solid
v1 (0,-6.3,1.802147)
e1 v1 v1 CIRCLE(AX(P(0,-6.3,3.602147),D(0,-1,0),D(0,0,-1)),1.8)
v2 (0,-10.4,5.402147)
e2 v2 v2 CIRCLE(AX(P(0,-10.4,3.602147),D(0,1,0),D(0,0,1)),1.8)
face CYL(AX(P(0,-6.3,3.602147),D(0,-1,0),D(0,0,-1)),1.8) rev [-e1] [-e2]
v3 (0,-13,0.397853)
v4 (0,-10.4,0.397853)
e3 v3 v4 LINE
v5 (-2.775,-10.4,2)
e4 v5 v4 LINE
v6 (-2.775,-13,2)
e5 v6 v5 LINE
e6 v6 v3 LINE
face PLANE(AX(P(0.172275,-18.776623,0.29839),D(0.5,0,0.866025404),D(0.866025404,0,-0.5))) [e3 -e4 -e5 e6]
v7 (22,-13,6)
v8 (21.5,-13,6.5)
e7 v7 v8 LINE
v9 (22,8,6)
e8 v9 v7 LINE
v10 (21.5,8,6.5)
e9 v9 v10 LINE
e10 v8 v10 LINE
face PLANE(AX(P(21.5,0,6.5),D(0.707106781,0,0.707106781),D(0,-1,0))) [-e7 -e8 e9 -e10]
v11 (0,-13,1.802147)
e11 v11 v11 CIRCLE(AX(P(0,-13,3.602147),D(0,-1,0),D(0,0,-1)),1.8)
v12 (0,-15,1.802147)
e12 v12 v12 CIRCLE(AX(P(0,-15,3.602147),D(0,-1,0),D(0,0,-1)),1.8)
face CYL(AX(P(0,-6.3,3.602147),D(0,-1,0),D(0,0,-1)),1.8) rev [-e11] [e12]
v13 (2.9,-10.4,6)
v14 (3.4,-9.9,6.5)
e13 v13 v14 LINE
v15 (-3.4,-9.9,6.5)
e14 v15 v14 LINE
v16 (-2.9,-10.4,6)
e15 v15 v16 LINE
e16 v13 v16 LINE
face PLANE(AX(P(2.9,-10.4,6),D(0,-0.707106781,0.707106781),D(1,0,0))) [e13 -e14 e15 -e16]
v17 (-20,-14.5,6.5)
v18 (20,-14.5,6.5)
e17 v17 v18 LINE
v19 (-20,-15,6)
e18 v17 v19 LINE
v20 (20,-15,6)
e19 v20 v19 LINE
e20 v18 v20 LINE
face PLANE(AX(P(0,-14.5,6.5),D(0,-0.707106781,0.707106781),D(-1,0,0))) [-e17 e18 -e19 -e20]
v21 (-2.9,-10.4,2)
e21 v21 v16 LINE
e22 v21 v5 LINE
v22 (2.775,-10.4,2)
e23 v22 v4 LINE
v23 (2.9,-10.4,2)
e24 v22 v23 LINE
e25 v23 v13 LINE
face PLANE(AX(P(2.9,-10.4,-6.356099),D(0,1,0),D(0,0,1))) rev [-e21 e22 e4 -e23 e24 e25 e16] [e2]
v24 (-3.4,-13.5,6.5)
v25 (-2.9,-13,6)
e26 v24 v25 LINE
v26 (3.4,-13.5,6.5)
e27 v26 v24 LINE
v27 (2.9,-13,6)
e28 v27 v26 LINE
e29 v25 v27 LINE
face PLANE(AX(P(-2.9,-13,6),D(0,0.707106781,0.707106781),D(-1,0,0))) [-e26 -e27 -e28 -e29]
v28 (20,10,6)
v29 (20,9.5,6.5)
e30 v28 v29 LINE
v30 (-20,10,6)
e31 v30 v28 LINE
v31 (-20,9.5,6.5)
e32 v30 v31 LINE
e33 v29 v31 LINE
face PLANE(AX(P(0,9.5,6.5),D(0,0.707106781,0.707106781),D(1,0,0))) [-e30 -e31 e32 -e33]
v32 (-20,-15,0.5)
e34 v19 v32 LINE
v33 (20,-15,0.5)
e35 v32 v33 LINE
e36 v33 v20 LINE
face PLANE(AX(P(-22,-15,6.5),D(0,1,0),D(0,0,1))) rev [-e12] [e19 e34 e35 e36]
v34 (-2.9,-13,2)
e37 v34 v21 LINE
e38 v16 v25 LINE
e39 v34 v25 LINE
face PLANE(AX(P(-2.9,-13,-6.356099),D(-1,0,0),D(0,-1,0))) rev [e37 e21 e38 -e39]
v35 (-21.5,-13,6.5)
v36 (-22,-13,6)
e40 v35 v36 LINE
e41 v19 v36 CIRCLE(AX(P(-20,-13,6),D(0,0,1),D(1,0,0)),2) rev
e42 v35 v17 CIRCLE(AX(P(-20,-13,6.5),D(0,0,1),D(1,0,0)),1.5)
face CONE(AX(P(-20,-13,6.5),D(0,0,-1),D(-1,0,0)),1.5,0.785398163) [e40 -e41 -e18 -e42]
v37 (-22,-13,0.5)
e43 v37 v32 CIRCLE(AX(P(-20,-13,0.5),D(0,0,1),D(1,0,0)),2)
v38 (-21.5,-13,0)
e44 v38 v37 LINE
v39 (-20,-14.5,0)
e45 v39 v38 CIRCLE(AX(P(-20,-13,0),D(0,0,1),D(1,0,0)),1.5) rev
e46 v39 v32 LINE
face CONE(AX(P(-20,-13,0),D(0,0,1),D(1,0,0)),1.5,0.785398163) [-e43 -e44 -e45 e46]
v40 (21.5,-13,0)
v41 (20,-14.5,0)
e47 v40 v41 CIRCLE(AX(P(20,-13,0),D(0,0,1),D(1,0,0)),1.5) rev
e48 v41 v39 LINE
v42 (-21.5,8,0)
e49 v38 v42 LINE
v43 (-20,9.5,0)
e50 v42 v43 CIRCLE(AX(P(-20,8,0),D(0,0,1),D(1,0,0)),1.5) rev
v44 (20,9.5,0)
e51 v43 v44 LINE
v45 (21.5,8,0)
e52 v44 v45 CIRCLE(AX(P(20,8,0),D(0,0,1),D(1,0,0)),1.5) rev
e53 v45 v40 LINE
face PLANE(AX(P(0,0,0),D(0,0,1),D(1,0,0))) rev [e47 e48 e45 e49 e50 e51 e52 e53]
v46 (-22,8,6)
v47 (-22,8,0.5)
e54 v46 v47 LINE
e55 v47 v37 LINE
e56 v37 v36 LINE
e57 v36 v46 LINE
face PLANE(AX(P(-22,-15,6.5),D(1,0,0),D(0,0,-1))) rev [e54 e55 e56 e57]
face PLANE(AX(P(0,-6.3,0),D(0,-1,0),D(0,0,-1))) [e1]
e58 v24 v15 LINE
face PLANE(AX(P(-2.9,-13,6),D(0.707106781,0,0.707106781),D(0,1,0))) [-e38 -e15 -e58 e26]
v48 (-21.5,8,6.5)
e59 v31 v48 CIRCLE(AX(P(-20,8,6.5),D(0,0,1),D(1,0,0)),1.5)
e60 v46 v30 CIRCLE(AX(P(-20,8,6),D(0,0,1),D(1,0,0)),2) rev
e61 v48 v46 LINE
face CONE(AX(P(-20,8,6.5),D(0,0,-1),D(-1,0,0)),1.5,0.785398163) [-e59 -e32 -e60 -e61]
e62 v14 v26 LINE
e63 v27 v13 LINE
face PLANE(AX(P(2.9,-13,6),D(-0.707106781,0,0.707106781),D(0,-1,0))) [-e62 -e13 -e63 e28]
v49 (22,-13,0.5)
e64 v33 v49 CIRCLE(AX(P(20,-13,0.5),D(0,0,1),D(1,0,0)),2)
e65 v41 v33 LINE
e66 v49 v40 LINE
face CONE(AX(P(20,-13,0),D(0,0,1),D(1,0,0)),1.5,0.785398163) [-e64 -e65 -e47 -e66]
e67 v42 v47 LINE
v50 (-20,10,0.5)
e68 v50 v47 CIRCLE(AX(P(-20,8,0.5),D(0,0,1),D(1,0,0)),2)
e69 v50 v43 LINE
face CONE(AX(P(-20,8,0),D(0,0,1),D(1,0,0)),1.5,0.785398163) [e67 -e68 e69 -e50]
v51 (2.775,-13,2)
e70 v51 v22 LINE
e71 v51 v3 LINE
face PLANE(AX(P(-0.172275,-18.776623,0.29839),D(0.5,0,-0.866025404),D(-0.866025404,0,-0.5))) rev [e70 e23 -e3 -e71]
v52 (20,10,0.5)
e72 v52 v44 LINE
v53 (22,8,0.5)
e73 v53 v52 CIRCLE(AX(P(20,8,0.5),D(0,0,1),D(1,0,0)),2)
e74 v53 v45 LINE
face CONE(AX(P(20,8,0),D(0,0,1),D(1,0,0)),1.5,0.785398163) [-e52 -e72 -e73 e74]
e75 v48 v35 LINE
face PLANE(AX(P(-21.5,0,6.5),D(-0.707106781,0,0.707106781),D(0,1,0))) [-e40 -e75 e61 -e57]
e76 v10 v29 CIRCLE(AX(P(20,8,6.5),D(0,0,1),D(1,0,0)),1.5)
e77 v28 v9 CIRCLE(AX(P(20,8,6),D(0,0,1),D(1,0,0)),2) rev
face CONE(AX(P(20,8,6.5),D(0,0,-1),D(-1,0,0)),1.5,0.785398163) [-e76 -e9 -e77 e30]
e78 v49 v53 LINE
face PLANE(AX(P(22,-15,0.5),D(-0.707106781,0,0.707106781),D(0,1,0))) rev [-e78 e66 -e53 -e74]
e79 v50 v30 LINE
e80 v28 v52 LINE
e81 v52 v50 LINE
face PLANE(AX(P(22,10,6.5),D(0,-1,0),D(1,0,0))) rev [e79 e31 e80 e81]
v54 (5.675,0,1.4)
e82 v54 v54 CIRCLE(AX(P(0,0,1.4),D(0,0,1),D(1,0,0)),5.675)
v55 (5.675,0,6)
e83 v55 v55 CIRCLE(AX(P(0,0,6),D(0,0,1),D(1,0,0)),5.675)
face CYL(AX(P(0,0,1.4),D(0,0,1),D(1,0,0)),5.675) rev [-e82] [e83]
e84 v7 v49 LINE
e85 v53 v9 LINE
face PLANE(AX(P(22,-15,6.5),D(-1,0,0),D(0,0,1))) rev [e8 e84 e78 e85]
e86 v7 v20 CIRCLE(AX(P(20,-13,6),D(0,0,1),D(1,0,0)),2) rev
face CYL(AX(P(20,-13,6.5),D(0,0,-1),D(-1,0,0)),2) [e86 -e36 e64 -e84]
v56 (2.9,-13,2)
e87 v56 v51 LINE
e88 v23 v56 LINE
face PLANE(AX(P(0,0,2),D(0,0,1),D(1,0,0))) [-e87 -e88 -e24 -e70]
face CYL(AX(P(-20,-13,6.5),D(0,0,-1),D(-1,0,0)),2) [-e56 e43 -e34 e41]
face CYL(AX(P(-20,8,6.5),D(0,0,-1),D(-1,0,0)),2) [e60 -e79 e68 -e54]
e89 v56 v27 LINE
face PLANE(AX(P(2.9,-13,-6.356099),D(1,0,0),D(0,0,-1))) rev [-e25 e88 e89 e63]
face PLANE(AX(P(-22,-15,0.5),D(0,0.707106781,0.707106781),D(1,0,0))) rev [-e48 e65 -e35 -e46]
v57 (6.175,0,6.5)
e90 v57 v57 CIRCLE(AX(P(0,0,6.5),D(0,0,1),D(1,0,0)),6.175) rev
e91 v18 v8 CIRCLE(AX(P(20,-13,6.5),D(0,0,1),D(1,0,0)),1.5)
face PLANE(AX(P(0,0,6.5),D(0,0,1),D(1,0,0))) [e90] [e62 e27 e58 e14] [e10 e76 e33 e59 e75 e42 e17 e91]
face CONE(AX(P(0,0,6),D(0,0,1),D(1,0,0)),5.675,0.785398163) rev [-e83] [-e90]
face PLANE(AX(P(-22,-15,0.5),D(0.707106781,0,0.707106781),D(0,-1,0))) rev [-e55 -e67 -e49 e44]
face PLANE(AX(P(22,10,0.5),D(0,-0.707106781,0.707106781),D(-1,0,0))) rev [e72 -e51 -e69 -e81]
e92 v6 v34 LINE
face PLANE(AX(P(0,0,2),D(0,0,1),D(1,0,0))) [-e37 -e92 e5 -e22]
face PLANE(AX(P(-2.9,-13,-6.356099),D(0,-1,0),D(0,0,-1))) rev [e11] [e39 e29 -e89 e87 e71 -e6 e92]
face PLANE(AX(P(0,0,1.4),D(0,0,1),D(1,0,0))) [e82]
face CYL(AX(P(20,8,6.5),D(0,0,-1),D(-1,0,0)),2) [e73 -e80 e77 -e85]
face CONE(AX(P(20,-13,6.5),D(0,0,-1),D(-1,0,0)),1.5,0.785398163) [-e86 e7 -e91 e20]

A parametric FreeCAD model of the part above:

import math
import FreeCAD as App
import Part
import Sketcher

V = App.Vector
Q = App.Units.Quantity


def edges_at(feature, points):
    """Names of the edges that pass closest to the given points."""
    edges = feature.Shape.Edges
    near = lambda p: min(range(len(edges)), key=lambda i: edges[i].distToShape(Part.Vertex(*p))[0])
    return sorted({f"Edge{near(p) + 1}" for p in points})

doc = App.newDocument("Part")
body = doc.addObject("PartDesign::Body", "Body")

# Sketch on XY plane
sketch1 = body.newObject("Sketcher::SketchObject", "Sketch")
sketch1.AttachmentSupport = (doc.getObject("XY_Plane"), [""])
sketch1.MapMode = "FlatFace"
sketch1.addGeometry(Part.LineSegment(V(-22, 10, 0), V(-22, -15, 0)), False)
sketch1.addGeometry(Part.LineSegment(V(-22, -15, 0), V(22, -15, 0)), False)
sketch1.addGeometry(Part.LineSegment(V(22, -15, 0), V(22, 10, 0)), False)
sketch1.addGeometry(Part.LineSegment(V(22, 10, 0), V(-22, 10, 0)), False)
sketch1.addConstraint(Sketcher.Constraint("Coincident", 0, 2, 1, 1))
sketch1.addConstraint(Sketcher.Constraint("Coincident", 1, 2, 2, 1))
sketch1.addConstraint(Sketcher.Constraint("Coincident", 2, 2, 3, 1))
sketch1.addConstraint(Sketcher.Constraint("Coincident", 3, 2, 0, 1))
sketch1.addConstraint(Sketcher.Constraint("Vertical", 0))
sketch1.addConstraint(Sketcher.Constraint("Horizontal", 1))
sketch1.addConstraint(Sketcher.Constraint("Vertical", 2))
sketch1.addConstraint(Sketcher.Constraint("Horizontal", 3))
sketch1.addConstraint(Sketcher.Constraint("DistanceX", 1, 1, 1, 2, 44.0))
sketch1.addConstraint(Sketcher.Constraint("DistanceY", 0, 2, 0, 1, 25.0))
sketch1.addConstraint(Sketcher.Constraint("DistanceX", 0, 2, -1, 1, 22.0))
sketch1.addConstraint(Sketcher.Constraint("DistanceY", 0, 2, -1, 1, 15.0))
pad1 = body.newObject("PartDesign::Pad", "Pad")
pad1.Profile = sketch1
pad1.Length = 6.5

# Sketch on XY plane
sketch2 = body.newObject("Sketcher::SketchObject", "Sketch001")
sketch2.AttachmentSupport = (doc.getObject("XY_Plane"), [""])
sketch2.MapMode = "FlatFace"
sketch2.AttachmentOffset = App.Placement(V(0, 0, 6.5), App.Rotation())
sketch2.addGeometry(Part.Circle(V(0, 0, 0), V(0, 0, 1), 5.675), False)
sketch2.addConstraint(Sketcher.Constraint("Coincident", 0, 3, -1, 1))
sketch2.addConstraint(Sketcher.Constraint("Diameter", 0, 11.35))
pocket1 = body.newObject("PartDesign::Pocket", "Pocket")
pocket1.Profile = sketch2
pocket1.Length = 5.1
doc.recompute()

fillet = body.newObject("PartDesign::Fillet", "Fillet")
fillet.Base = (pocket1, edges_at(pocket1, [
    (-22, 10, 3.25),
    (22, 10, 3.25),
    (22, -15, 3.25),
    (-22, -15, 3.25),
]))
fillet.Radius = 2

# Sketch on XY plane
sketch3 = body.newObject("Sketcher::SketchObject", "Sketch002")
sketch3.AttachmentSupport = (doc.getObject("XY_Plane"), [""])
sketch3.MapMode = "FlatFace"
sketch3.AttachmentOffset = App.Placement(V(0, 0, 6.5), App.Rotation())
sketch3.addGeometry(Part.LineSegment(V(-2.9, -10.4, 0), V(-2.9, -13, 0)), False)
sketch3.addGeometry(Part.LineSegment(V(-2.9, -13, 0), V(2.9, -13, 0)), False)
sketch3.addGeometry(Part.LineSegment(V(2.9, -13, 0), V(2.9, -10.4, 0)), False)
sketch3.addGeometry(Part.LineSegment(V(2.9, -10.4, 0), V(-2.9, -10.4, 0)), False)
sketch3.addConstraint(Sketcher.Constraint("Coincident", 0, 2, 1, 1))
sketch3.addConstraint(Sketcher.Constraint("Coincident", 1, 2, 2, 1))
sketch3.addConstraint(Sketcher.Constraint("Coincident", 2, 2, 3, 1))
sketch3.addConstraint(Sketcher.Constraint("Coincident", 3, 2, 0, 1))
sketch3.addConstraint(Sketcher.Constraint("Vertical", 0))
sketch3.addConstraint(Sketcher.Constraint("Horizontal", 1))
sketch3.addConstraint(Sketcher.Constraint("Vertical", 2))
sketch3.addConstraint(Sketcher.Constraint("Horizontal", 3))
sketch3.addConstraint(Sketcher.Constraint("DistanceX", 1, 1, 1, 2, 5.8))
sketch3.addConstraint(Sketcher.Constraint("DistanceY", 0, 2, 0, 1, 2.6))
sketch3.addConstraint(Sketcher.Constraint("DistanceY", 0, 2, -1, 1, 13.0))
sketch3.addConstraint(Sketcher.Constraint("DistanceX", 0, 2, -1, 1, 2.9))
pocket2 = body.newObject("PartDesign::Pocket", "Pocket001")
pocket2.Profile = sketch3
pocket2.Length = 4.5

# Sketch on XZ plane
sketch4 = body.newObject("Sketcher::SketchObject", "Sketch003")
sketch4.AttachmentSupport = (doc.getObject("XZ_Plane"), [""])
sketch4.MapMode = "FlatFace"
sketch4.AttachmentOffset = App.Placement(V(0, 0, 10.4), App.Rotation())
sketch4.addGeometry(Part.LineSegment(V(-0.820442, 2, 0), V(-2.775, 2, 0)), False)
sketch4.addGeometry(Part.LineSegment(V(-2.775, 2, 0), V(0, 0.397853, 0)), False)
sketch4.addGeometry(Part.LineSegment(V(0, 0.397853, 0), V(2.775, 2, 0)), False)
sketch4.addGeometry(Part.LineSegment(V(2.775, 2, 0), V(0.820442, 2, 0)), False)
sketch4.addGeometry(Part.ArcOfCircle(Part.Circle(V(0, 3.602147, 0), V(0, 0, 1), 1.8), math.radians(-62.883511), math.radians(0)), False)
sketch4.addGeometry(Part.ArcOfCircle(Part.Circle(V(0, 3.602147, 0), V(0, 0, 1), 1.8), math.radians(0), math.radians(242.883511)), False)
sketch4.addConstraint(Sketcher.Constraint("Coincident", 0, 2, 1, 1))
sketch4.addConstraint(Sketcher.Constraint("Coincident", 1, 2, 2, 1))
sketch4.addConstraint(Sketcher.Constraint("Coincident", 2, 2, 3, 1))
sketch4.addConstraint(Sketcher.Constraint("Coincident", 3, 2, 4, 1))
sketch4.addConstraint(Sketcher.Constraint("Tangent", 4, 2, 5, 1))
sketch4.addConstraint(Sketcher.Constraint("Coincident", 5, 2, 0, 1))
sketch4.addConstraint(Sketcher.Constraint("Horizontal", 0))
sketch4.addConstraint(Sketcher.Constraint("Horizontal", 3))
sketch4.addConstraint(Sketcher.Constraint("Equal", 4, 5))
sketch4.addConstraint(Sketcher.Constraint("Symmetric", 0, 2, 2, 2, -2))
sketch4.addConstraint(Sketcher.Constraint("PointOnObject", 4, 3, -2))
sketch4.addConstraint(Sketcher.Constraint("PointOnObject", 1, 2, -2))
sketch4.addConstraint(Sketcher.Constraint("Horizontal", 5, 3, 4, 2))
sketch4.addConstraint(Sketcher.Constraint("Radius", 4, 1.8))
sketch4.addConstraint(Sketcher.Constraint("Angle", 1, Q("-30 deg")))
sketch4.addConstraint(Sketcher.Constraint("DistanceY", -1, 1, 0, 2, 2.0))
sketch4.addConstraint(Sketcher.Constraint("DistanceX", 0, 2, 2, 2, 5.55))
sketch4.addConstraint(Sketcher.Constraint("DistanceX", 0, 2, 0, 1, 1.954558))
pocket3 = body.newObject("PartDesign::Pocket", "Pocket002")
pocket3.Profile = sketch4
pocket3.Length = 2.6
pocket3.Reversed = True

# Sketch on XZ plane
sketch5 = body.newObject("Sketcher::SketchObject", "Sketch004")
sketch5.AttachmentSupport = (doc.getObject("XZ_Plane"), [""])
sketch5.MapMode = "FlatFace"
sketch5.AttachmentOffset = App.Placement(V(0, 0, 10.4), App.Rotation())
sketch5.addGeometry(Part.ArcOfCircle(Part.Circle(V(0, 3.602147, 0), V(0, 0, 1), 1.8), math.radians(0), math.radians(242.883511)), False)
sketch5.addGeometry(Part.ArcOfCircle(Part.Circle(V(0, 3.602147, 0), V(0, 0, 1), 1.8), math.radians(-117.116489), math.radians(-62.883511)), False)
sketch5.addGeometry(Part.ArcOfCircle(Part.Circle(V(0, 3.602147, 0), V(0, 0, 1), 1.8), math.radians(-62.883511), math.radians(0)), False)
sketch5.addConstraint(Sketcher.Constraint("Tangent", 0, 2, 1, 1))
sketch5.addConstraint(Sketcher.Constraint("Tangent", 1, 2, 2, 1))
sketch5.addConstraint(Sketcher.Constraint("Tangent", 2, 2, 0, 1))
sketch5.addConstraint(Sketcher.Constraint("Symmetric", 0, 2, 1, 2, -2))
sketch5.addConstraint(Sketcher.Constraint("Horizontal", 1, 3, 2, 2))
sketch5.addConstraint(Sketcher.Constraint("Radius", 0, 1.8))
sketch5.addConstraint(Sketcher.Constraint("DistanceY", -1, 1, 0, 2, 2.0))
sketch5.addConstraint(Sketcher.Constraint("DistanceX", 0, 2, -1, 1, 0.820442))
pocket4 = body.newObject("PartDesign::Pocket", "Pocket003")
pocket4.Profile = sketch5
pocket4.Type = "TwoLengths"
pocket4.Length = 31.698697
pocket4.Length2 = 4.1
pocket4.Reversed = True
doc.recompute()

chamfer = body.newObject("PartDesign::Chamfer", "Chamfer")
chamfer.Base = (pocket4, edges_at(pocket4, [
    (-5.675, 0, 6.5),
    (0, 10, 0),
    (0, 10, 6.5),
    (-22, -2.5, 0),
    (22, -2.5, 0),
    (0, -15, 0),
    (-21.414, -14.414, 0),
    (-21.414, 9.414, 0),
    (21.414, -14.414, 0),
    (21.414, 9.414, 0),
    (22, -2.5, 6.5),
    (-22, -2.5, 6.5),
    (0, -15, 6.5),
    (-21.414, -14.414, 6.5),
    (-21.414, 9.414, 6.5),
    (21.414, -14.414, 6.5),
    (21.414, 9.414, 6.5),
    (2.9, -11.7, 6.5),
    (0, -10.4, 6.5),
    (-2.9, -11.7, 6.5),
    (0, -13, 6.5),
]))
chamfer.Size = 0.5

doc.recompute()
